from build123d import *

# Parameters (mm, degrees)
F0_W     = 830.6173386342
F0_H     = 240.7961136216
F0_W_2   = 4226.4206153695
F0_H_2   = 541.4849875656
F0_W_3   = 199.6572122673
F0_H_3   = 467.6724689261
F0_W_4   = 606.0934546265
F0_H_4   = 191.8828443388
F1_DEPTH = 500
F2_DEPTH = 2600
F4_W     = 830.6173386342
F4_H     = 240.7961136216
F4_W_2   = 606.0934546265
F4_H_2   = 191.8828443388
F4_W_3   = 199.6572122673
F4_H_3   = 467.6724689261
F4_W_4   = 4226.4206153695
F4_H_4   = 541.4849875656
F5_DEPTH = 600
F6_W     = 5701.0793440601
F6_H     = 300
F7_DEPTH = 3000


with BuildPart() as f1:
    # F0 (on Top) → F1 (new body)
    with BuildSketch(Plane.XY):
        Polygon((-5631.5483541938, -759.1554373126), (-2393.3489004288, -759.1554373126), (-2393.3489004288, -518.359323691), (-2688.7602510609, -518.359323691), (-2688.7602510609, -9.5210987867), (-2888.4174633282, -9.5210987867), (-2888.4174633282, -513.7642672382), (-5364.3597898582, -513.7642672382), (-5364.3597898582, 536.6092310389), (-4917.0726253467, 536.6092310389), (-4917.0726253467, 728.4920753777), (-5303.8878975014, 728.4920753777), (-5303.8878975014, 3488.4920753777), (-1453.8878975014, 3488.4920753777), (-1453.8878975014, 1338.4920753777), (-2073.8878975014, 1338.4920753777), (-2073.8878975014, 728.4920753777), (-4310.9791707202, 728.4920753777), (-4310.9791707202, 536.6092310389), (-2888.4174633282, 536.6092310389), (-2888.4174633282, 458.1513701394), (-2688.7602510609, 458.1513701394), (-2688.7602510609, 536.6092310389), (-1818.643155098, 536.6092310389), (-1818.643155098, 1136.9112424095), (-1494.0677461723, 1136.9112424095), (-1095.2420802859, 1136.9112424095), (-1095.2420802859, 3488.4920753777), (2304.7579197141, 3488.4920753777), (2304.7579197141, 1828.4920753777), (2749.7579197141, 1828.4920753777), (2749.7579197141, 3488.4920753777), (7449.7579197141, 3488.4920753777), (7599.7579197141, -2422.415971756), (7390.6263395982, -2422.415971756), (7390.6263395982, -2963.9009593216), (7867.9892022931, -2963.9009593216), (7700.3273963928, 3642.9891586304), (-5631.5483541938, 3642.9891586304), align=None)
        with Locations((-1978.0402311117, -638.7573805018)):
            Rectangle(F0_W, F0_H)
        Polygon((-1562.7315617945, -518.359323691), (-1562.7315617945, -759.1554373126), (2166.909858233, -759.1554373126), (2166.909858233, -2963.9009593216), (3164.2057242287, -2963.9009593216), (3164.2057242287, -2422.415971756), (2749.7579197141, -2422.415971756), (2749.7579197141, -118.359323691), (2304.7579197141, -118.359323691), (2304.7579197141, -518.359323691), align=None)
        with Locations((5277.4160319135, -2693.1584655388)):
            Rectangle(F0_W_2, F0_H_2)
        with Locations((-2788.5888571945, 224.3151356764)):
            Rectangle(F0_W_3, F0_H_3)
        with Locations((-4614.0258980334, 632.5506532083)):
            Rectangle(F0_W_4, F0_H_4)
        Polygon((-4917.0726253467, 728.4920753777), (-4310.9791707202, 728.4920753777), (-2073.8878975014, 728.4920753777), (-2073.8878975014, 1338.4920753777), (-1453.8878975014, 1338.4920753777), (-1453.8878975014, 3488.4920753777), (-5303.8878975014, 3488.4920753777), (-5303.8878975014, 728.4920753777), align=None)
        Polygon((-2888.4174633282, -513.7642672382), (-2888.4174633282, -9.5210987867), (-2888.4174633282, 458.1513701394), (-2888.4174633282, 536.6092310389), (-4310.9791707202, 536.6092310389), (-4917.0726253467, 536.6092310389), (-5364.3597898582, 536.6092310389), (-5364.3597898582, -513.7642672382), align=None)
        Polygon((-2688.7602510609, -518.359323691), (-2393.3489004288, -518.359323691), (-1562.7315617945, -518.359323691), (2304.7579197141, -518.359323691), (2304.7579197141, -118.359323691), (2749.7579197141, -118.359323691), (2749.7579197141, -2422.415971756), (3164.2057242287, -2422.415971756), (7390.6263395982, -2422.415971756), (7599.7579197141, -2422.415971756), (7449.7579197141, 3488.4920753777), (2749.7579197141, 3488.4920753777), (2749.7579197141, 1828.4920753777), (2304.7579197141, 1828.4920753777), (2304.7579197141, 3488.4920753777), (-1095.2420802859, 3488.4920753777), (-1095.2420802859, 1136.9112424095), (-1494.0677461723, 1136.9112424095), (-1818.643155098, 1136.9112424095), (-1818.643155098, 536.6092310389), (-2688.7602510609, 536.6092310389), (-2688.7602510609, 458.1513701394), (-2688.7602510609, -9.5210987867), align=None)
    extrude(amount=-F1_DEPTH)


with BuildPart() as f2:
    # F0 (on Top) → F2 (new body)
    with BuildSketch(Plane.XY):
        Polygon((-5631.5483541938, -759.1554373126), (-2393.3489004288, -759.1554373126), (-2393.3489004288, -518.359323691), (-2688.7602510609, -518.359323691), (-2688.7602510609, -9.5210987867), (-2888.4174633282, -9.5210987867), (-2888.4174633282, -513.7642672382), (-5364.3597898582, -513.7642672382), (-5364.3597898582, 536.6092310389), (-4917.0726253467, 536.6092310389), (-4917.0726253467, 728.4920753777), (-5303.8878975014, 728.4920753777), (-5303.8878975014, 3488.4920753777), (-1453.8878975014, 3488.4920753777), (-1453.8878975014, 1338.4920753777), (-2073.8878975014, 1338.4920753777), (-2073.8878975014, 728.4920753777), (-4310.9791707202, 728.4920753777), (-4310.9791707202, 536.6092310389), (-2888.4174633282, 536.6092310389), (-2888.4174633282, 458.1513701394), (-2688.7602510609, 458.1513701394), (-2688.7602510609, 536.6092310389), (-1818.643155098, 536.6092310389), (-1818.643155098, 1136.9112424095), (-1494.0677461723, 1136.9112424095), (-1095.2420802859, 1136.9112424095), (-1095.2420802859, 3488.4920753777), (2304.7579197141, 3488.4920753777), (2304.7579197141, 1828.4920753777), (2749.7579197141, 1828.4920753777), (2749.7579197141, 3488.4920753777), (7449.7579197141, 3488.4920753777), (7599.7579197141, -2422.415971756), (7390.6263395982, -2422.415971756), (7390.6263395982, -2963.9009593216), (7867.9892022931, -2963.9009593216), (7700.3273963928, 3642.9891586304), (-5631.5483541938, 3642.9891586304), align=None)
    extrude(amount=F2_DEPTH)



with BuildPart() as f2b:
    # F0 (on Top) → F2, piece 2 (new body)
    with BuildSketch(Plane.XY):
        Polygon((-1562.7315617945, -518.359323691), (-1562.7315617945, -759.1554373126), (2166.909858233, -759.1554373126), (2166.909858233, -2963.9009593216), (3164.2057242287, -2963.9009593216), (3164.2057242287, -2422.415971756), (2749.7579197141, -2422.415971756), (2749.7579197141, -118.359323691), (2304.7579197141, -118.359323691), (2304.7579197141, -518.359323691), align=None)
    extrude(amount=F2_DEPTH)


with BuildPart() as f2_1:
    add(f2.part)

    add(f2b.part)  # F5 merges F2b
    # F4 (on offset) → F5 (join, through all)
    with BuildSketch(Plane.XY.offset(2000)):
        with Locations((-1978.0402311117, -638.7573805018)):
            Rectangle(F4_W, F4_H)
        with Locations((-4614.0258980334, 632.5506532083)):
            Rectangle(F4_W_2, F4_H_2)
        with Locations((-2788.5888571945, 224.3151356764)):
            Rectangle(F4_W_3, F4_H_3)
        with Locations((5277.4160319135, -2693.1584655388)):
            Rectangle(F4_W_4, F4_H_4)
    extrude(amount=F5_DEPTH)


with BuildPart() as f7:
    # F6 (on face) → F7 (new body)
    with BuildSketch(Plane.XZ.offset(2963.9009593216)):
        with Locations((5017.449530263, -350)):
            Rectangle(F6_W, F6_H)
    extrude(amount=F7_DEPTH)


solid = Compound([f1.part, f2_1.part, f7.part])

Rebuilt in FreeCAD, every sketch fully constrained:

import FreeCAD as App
import Part
import Sketcher

V = App.Vector

doc = App.newDocument("Part")
body = doc.addObject("PartDesign::Body", "Body")

# Sketch on XY plane
sketch1 = doc.addObject("Sketcher::SketchObject", "Sketch")
body.addObject(sketch1)
sketch1.AttachmentSupport = (doc.XY_Plane, [""])
sketch1.MapMode = "FlatFace"
sketch1.addGeometry([
    Part.LineSegment(V(-5632, -759, 0), V(2167, -759, 0)),  # 0
    Part.LineSegment(V(2167, -759, 0), V(2167, -2964, 0)),  # 1
    Part.LineSegment(V(2167, -2964, 0), V(7868, -2964, 0)),  # 2
    Part.LineSegment(V(7868, -2964, 0), V(7700, 3643, 0)),  # 3
    Part.LineSegment(V(7700, 3643, 0), V(-5632, 3643, 0)),  # 4
    Part.LineSegment(V(-5632, 3643, 0), V(-5632, -759, 0)),  # 5
], False)
sketch1.addConstraint([
    Sketcher.Constraint("Coincident", 0, 2, 1, 1),
    Sketcher.Constraint("Coincident", 1, 2, 2, 1),
    Sketcher.Constraint("Coincident", 2, 2, 3, 1),
    Sketcher.Constraint("Coincident", 3, 2, 4, 1),
    Sketcher.Constraint("Coincident", 4, 2, 5, 1),
    Sketcher.Constraint("Coincident", 5, 2, 0, 1),
    Sketcher.Constraint("Horizontal", 0),
    Sketcher.Constraint("Vertical", 1),
    Sketcher.Constraint("Horizontal", 2),
    Sketcher.Constraint("Horizontal", 4),
    Sketcher.Constraint("Vertical", 5),
    Sketcher.Constraint("DistanceX", 4, 2, 4, 1, 13331.875751),
    Sketcher.Constraint("DistanceX", 0, 1, 0, 2, 7798.458212),
    Sketcher.Constraint("DistanceX", 2, 1, 2, 2, 5701.079344),
    Sketcher.Constraint("DistanceY", 1, 2, 1, 1, 2204.745522),
    Sketcher.Constraint("DistanceY", 5, 2, 5, 1, 4402.144596),
    Sketcher.Constraint("DistanceX", -1, 1, 0, 2, 2166.909858),
    Sketcher.Constraint("DistanceY", 1, 2, -1, 1, 2963.900959),
])
pad1 = doc.addObject("PartDesign::Pad", "Pad")
body.addObject(pad1)
pad1.Profile = sketch1
pad1.Length = 500
pad1.Reversed = True
body2 = doc.addObject("PartDesign::Body", "Body001")

# Sketch on XY plane
sketch2 = doc.addObject("Sketcher::SketchObject", "Sketch001")
body2.addObject(sketch2)
sketch2.AttachmentSupport = (doc.getObject("XY_Plane001"), [""])
sketch2.MapMode = "FlatFace"
sketch2.addGeometry([
    Part.LineSegment(V(-5632, -759, 0), V(-2393, -759, 0)),  # 0
    Part.LineSegment(V(-2393, -759, 0), V(-2393, -518, 0)),  # 1
    Part.LineSegment(V(-2393, -518, 0), V(-2689, -518, 0)),  # 2
    Part.LineSegment(V(-2689, -518, 0), V(-2689, -10, 0)),  # 3
    Part.LineSegment(V(-2689, -10, 0), V(-2888, -10, 0)),  # 4
    Part.LineSegment(V(-2888, -10, 0), V(-2888, -514, 0)),  # 5
    Part.LineSegment(V(-2888, -514, 0), V(-5364, -514, 0)),  # 6
    Part.LineSegment(V(-5364, -514, 0), V(-5364, 537, 0)),  # 7
    Part.LineSegment(V(-5364, 537, 0), V(-4917, 537, 0)),  # 8
    Part.LineSegment(V(-4917, 537, 0), V(-4917, 728, 0)),  # 9
    Part.LineSegment(V(-4917, 728, 0), V(-5304, 728, 0)),  # 10
    Part.LineSegment(V(-5304, 728, 0), V(-5304, 3488, 0)),  # 11
    Part.LineSegment(V(-5304, 3488, 0), V(-1454, 3488, 0)),  # 12
    Part.LineSegment(V(-1454, 3488, 0), V(-1454, 1338, 0)),  # 13
    Part.LineSegment(V(-1454, 1338, 0), V(-2074, 1338, 0)),  # 14
    Part.LineSegment(V(-2074, 1338, 0), V(-2074, 728, 0)),  # 15
    Part.LineSegment(V(-2074, 728, 0), V(-4311, 728, 0)),  # 16
    Part.LineSegment(V(-4311, 728, 0), V(-4311, 537, 0)),  # 17
    Part.LineSegment(V(-4311, 537, 0), V(-2888, 537, 0)),  # 18
    Part.LineSegment(V(-2888, 537, 0), V(-2888, 458, 0)),  # 19
    Part.LineSegment(V(-2888, 458, 0), V(-2689, 458, 0)),  # 20
    Part.LineSegment(V(-2689, 458, 0), V(-2689, 537, 0)),  # 21
    Part.LineSegment(V(-2689, 537, 0), V(-1819, 537, 0)),  # 22
    Part.LineSegment(V(-1819, 537, 0), V(-1819, 1137, 0)),  # 23
    Part.LineSegment(V(-1819, 1137, 0), V(-1095, 1137, 0)),  # 24
    Part.LineSegment(V(-1095, 1137, 0), V(-1095, 3488, 0)),  # 25
    Part.LineSegment(V(-1095, 3488, 0), V(2305, 3488, 0)),  # 26
    Part.LineSegment(V(2305, 3488, 0), V(2305, 1828, 0)),  # 27
    Part.LineSegment(V(2305, 1828, 0), V(2750, 1828, 0)),  # 28
    Part.LineSegment(V(2750, 1828, 0), V(2750, 3488, 0)),  # 29
    Part.LineSegment(V(2750, 3488, 0), V(7450, 3488, 0)),  # 30
    Part.LineSegment(V(7450, 3488, 0), V(7600, -2422, 0)),  # 31
    Part.LineSegment(V(7600, -2422, 0), V(7391, -2422, 0)),  # 32
    Part.LineSegment(V(7391, -2422, 0), V(7391, -2964, 0)),  # 33
    Part.LineSegment(V(7391, -2964, 0), V(7868, -2964, 0)),  # 34
    Part.LineSegment(V(7868, -2964, 0), V(7700, 3643, 0)),  # 35
    Part.LineSegment(V(7700, 3643, 0), V(-5632, 3643, 0)),  # 36
    Part.LineSegment(V(-5632, 3643, 0), V(-5632, -759, 0)),  # 37
], False)
sketch2.addConstraint([
    Sketcher.Constraint("Coincident", 0, 2, 1, 1),
    Sketcher.Constraint("Coincident", 1, 2, 2, 1),
    Sketcher.Constraint("Coincident", 2, 2, 3, 1),
    Sketcher.Constraint("Coincident", 3, 2, 4, 1),
    Sketcher.Constraint("Coincident", 4, 2, 5, 1),
    Sketcher.Constraint("Coincident", 5, 2, 6, 1),
    Sketcher.Constraint("Coincident", 6, 2, 7, 1),
    Sketcher.Constraint("Coincident", 7, 2, 8, 1),
    Sketcher.Constraint("Coincident", 8, 2, 9, 1),
    Sketcher.Constraint("Coincident", 9, 2, 10, 1),
    Sketcher.Constraint("Coincident", 10, 2, 11, 1),
    Sketcher.Constraint("Coincident", 11, 2, 12, 1),
    Sketcher.Constraint("Coincident", 12, 2, 13, 1),
    Sketcher.Constraint("Coincident", 13, 2, 14, 1),
    Sketcher.Constraint("Coincident", 14, 2, 15, 1),
    Sketcher.Constraint("Coincident", 15, 2, 16, 1),
    Sketcher.Constraint("Coincident", 16, 2, 17, 1),
    Sketcher.Constraint("Coincident", 17, 2, 18, 1),
    Sketcher.Constraint("Coincident", 18, 2, 19, 1),
    Sketcher.Constraint("Coincident", 19, 2, 20, 1),
    Sketcher.Constraint("Coincident", 20, 2, 21, 1),
    Sketcher.Constraint("Coincident", 21, 2, 22, 1),
    Sketcher.Constraint("Coincident", 22, 2, 23, 1),
    Sketcher.Constraint("Coincident", 23, 2, 24, 1),
    Sketcher.Constraint("Coincident", 24, 2, 25, 1),
    Sketcher.Constraint("Coincident", 25, 2, 26, 1),
    Sketcher.Constraint("Coincident", 26, 2, 27, 1),
    Sketcher.Constraint("Coincident", 27, 2, 28, 1),
    Sketcher.Constraint("Coincident", 28, 2, 29, 1),
    Sketcher.Constraint("Coincident", 29, 2, 30, 1),
    Sketcher.Constraint("Coincident", 30, 2, 31, 1),
    Sketcher.Constraint("Coincident", 31, 2, 32, 1),
    Sketcher.Constraint("Coincident", 32, 2, 33, 1),
    Sketcher.Constraint("Coincident", 33, 2, 34, 1),
    Sketcher.Constraint("Coincident", 34, 2, 35, 1),
    Sketcher.Constraint("Coincident", 35, 2, 36, 1),
    Sketcher.Constraint("Coincident", 36, 2, 37, 1),
    Sketcher.Constraint("Coincident", 37, 2, 0, 1),
    Sketcher.Constraint("Horizontal", 0),
    Sketcher.Constraint("Vertical", 1),
    Sketcher.Constraint("Horizontal", 2),
    Sketcher.Constraint("Vertical", 3),
    Sketcher.Constraint("Horizontal", 4),
    Sketcher.Constraint("Vertical", 5),
    Sketcher.Constraint("Horizontal", 6),
    Sketcher.Constraint("Vertical", 7),
    Sketcher.Constraint("Horizontal", 8),
    Sketcher.Constraint("Vertical", 9),
    Sketcher.Constraint("Horizontal", 10),
    Sketcher.Constraint("Vertical", 11),
    Sketcher.Constraint("Horizontal", 12),
    Sketcher.Constraint("Vertical", 13),
    Sketcher.Constraint("Horizontal", 14),
    Sketcher.Constraint("Vertical", 15),
    Sketcher.Constraint("Horizontal", 16),
    Sketcher.Constraint("Vertical", 17),
    Sketcher.Constraint("Horizontal", 18),
    Sketcher.Constraint("Vertical", 19),
    Sketcher.Constraint("Horizontal", 20),
    Sketcher.Constraint("Vertical", 21),
    Sketcher.Constraint("Horizontal", 22),
    Sketcher.Constraint("Vertical", 23),
    Sketcher.Constraint("Horizontal", 24),
    Sketcher.Constraint("Vertical", 25),
    Sketcher.Constraint("Horizontal", 26),
    Sketcher.Constraint("Vertical", 27),
    Sketcher.Constraint("Horizontal", 28),
    Sketcher.Constraint("Vertical", 29),
    Sketcher.Constraint("Horizontal", 30),
    Sketcher.Constraint("Horizontal", 32),
    Sketcher.Constraint("Vertical", 33),
    Sketcher.Constraint("Horizontal", 34),
    Sketcher.Constraint("Horizontal", 36),
    Sketcher.Constraint("Vertical", 37),
    Sketcher.Constraint("Parallel", 31, 35),
    Sketcher.Constraint("Horizontal", 10, 2, 15, 2),
    Sketcher.Constraint("Horizontal", 8, 2, 17, 2),
    Sketcher.Constraint("Horizontal", 18, 2, 21, 2),
    Sketcher.Constraint("Horizontal", 12, 2, 25, 2),
    Sketcher.Constraint("Horizontal", 26, 2, 29, 2),
    Sketcher.Constraint("Vertical", 5, 2, 18, 2),
    Sketcher.Constraint("Vertical", 3, 2, 20, 2),
    Sketcher.Constraint("DistanceX", 12, 1, 12, 2, 3850.0),
    Sketcher.Constraint("DistanceX", 14, 2, 14, 1, 620.0),
    Sketcher.Constraint("DistanceX", 26, 1, 26, 2, 3400.0),
    Sketcher.Constraint("DistanceX", 28, 1, 28, 2, 445.0),
    Sketcher.Constraint("DistanceX", 30, 1, 30, 2, 4700.0),
    Sketcher.Constraint("DistanceY", 11, 1, 11, 2, 2760.0),
    Sketcher.Constraint("DistanceY", 13, 2, 13, 1, 2150.0),
    Sketcher.Constraint("DistanceY", 27, 2, 27, 1, 1660.0),
    Sketcher.Constraint("DistanceX", 30, 2, 31, 2, 150.0),
    Sketcher.Constraint("Distance", 31, 5912.811002),
    Sketcher.Constraint("DistanceY", 7, 1, 7, 2, 1050.373498),
    Sketcher.Constraint("DistanceX", 2, 2, 2, 1, 295.411351),
    Sketcher.Constraint("DistanceX", 32, 2, 32, 1, 209.13158),
    Sketcher.Constraint("DistanceX", 36, 2, 36, 1, 13331.875751),
    Sketcher.Constraint("DistanceY", 5, 2, 5, 1, 504.243168),
    Sketcher.Constraint("DistanceY", 19, 2, 19, 1, 78.457861),
    Sketcher.Constraint("DistanceY", 23, 1, 23, 2, 600.302011),
    Sketcher.Constraint("DistanceX", 0, 2, -1, 1, 2393.3489),
    Sketcher.Constraint("DistanceY", 3, 2, -1, 1, 9.521099),
    Sketcher.Constraint("DistanceY", 1, 2, 12, 2, 4006.851399),
    Sketcher.Constraint("DistanceX", 0, 1, 0, 2, 3238.199454),
    Sketcher.Constraint("DistanceX", 4, 2, 4, 1, 199.657212),
    Sketcher.Constraint("DistanceX", 6, 2, 6, 1, 2475.942327),
    Sketcher.Constraint("DistanceX", 8, 1, 8, 2, 447.287165),
    Sketcher.Constraint("DistanceX", 10, 2, 10, 1, 386.815272),
    Sketcher.Constraint("DistanceX", 16, 2, 16, 1, 2237.091273),
    Sketcher.Constraint("DistanceX", 22, 1, 22, 2, 870.117096),
    Sketcher.Constraint("DistanceX", 24, 1, 24, 2, 723.401075),
    Sketcher.Constraint("DistanceX", 34, 1, 34, 2, 477.362863),
    Sketcher.Constraint("DistanceY", 1, 1, 1, 2, 240.796114),
    Sketcher.Constraint("DistanceY", 3, 1, 3, 2, 508.838225),
    Sketcher.Constraint("DistanceY", 33, 2, 33, 1, 541.484988),
])
pad2 = doc.addObject("PartDesign::Pad", "Pad001")
body2.addObject(pad2)
pad2.Profile = sketch2
pad2.Length = 2600
body3 = doc.addObject("PartDesign::Body", "Body002")

# Sketch on XY plane
sketch3 = doc.addObject("Sketcher::SketchObject", "Sketch002")
body3.addObject(sketch3)
sketch3.AttachmentSupport = (doc.getObject("XY_Plane002"), [""])
sketch3.MapMode = "FlatFace"
sketch3.addGeometry([
    Part.LineSegment(V(-1563, -518, 0), V(-1563, -759, 0)),  # 0
    Part.LineSegment(V(-1563, -759, 0), V(2167, -759, 0)),  # 1
    Part.LineSegment(V(2167, -759, 0), V(2167, -2964, 0)),  # 2
    Part.LineSegment(V(2167, -2964, 0), V(3164, -2964, 0)),  # 3
    Part.LineSegment(V(3164, -2964, 0), V(3164, -2422, 0)),  # 4
    Part.LineSegment(V(3164, -2422, 0), V(2750, -2422, 0)),  # 5
    Part.LineSegment(V(2750, -2422, 0), V(2750, -118, 0)),  # 6
    Part.LineSegment(V(2750, -118, 0), V(2305, -118, 0)),  # 7
    Part.LineSegment(V(2305, -118, 0), V(2305, -518, 0)),  # 8
    Part.LineSegment(V(2305, -518, 0), V(-1563, -518, 0)),  # 9
], False)
sketch3.addConstraint([
    Sketcher.Constraint("Coincident", 0, 2, 1, 1),
    Sketcher.Constraint("Coincident", 1, 2, 2, 1),
    Sketcher.Constraint("Coincident", 2, 2, 3, 1),
    Sketcher.Constraint("Coincident", 3, 2, 4, 1),
    Sketcher.Constraint("Coincident", 4, 2, 5, 1),
    Sketcher.Constraint("Coincident", 5, 2, 6, 1),
    Sketcher.Constraint("Coincident", 6, 2, 7, 1),
    Sketcher.Constraint("Coincident", 7, 2, 8, 1),
    Sketcher.Constraint("Coincident", 8, 2, 9, 1),
    Sketcher.Constraint("Coincident", 9, 2, 0, 1),
    Sketcher.Constraint("Vertical", 0),
    Sketcher.Constraint("Horizontal", 1),
    Sketcher.Constraint("Vertical", 2),
    Sketcher.Constraint("Horizontal", 3),
    Sketcher.Constraint("Vertical", 4),
    Sketcher.Constraint("Horizontal", 5),
    Sketcher.Constraint("Vertical", 6),
    Sketcher.Constraint("Horizontal", 7),
    Sketcher.Constraint("Vertical", 8),
    Sketcher.Constraint("Horizontal", 9),
    Sketcher.Constraint("DistanceX", 7, 2, 7, 1, 445.0),
    Sketcher.Constraint("DistanceY", 8, 2, 8, 1, 400.0),
    Sketcher.Constraint("DistanceX", 1, 1, 1, 2, 3729.64142),
    Sketcher.Constraint("DistanceX", 9, 2, 9, 1, 3867.489482),
    Sketcher.Constraint("DistanceY", 6, 1, 6, 2, 2304.056648),
    Sketcher.Constraint("DistanceX", 3, 1, 3, 2, 997.295866),
    Sketcher.Constraint("DistanceY", 0, 2, 0, 1, 240.796114),
    Sketcher.Constraint("DistanceY", 2, 2, 2, 1, 2204.745522),
    Sketcher.Constraint("DistanceX", 0, 2, -1, 1, 1562.731562),
    Sketcher.Constraint("DistanceY", 2, 2, -1, 1, 2963.900959),
])
pad3 = doc.addObject("PartDesign::Pad", "Pad002")
body3.addObject(pad3)
pad3.Profile = sketch3
pad3.Length = 2600
body2.AllowCompound = True
doc.recompute()

boolean = doc.addObject("PartDesign::Boolean", "Boolean")
body2.addObject(boolean)
boolean.Type = "Fuse"
boolean.addObjects([body3])

# Sketch on XY plane
sketch4 = doc.addObject("Sketcher::SketchObject", "Sketch003")
body2.addObject(sketch4)
sketch4.AttachmentSupport = (doc.getObject("XY_Plane001"), [""])
sketch4.MapMode = "FlatFace"
sketch4.AttachmentOffset = App.Placement(V(0, 0, 2000), App.Rotation())
sketch4.addGeometry([
    Part.LineSegment(V(-2393, -518, 0), V(-2393, -759, 0)),  # 0
    Part.LineSegment(V(-2393, -759, 0), V(-1563, -759, 0)),  # 1
    Part.LineSegment(V(-1563, -759, 0), V(-1563, -518, 0)),  # 2
    Part.LineSegment(V(-1563, -518, 0), V(-2393, -518, 0)),  # 3
    Part.LineSegment(V(-4917, 728, 0), V(-4917, 537, 0)),  # 4
    Part.LineSegment(V(-4917, 537, 0), V(-4311, 537, 0)),  # 5
    Part.LineSegment(V(-4311, 537, 0), V(-4311, 728, 0)),  # 6
    Part.LineSegment(V(-4311, 728, 0), V(-4917, 728, 0)),  # 7
    Part.LineSegment(V(-2888, 458, 0), V(-2888, -10, 0)),  # 8
    Part.LineSegment(V(-2888, -10, 0), V(-2689, -10, 0)),  # 9
    Part.LineSegment(V(-2689, -10, 0), V(-2689, 458, 0)),  # 10
    Part.LineSegment(V(-2689, 458, 0), V(-2888, 458, 0)),  # 11
    Part.LineSegment(V(3164, -2422, 0), V(3164, -2964, 0)),  # 12
    Part.LineSegment(V(3164, -2964, 0), V(7391, -2964, 0)),  # 13
    Part.LineSegment(V(7391, -2964, 0), V(7391, -2422, 0)),  # 14
    Part.LineSegment(V(7391, -2422, 0), V(3164, -2422, 0)),  # 15
], False)
sketch4.addConstraint([
    Sketcher.Constraint("Coincident", 0, 2, 1, 1),
    Sketcher.Constraint("Coincident", 1, 2, 2, 1),
    Sketcher.Constraint("Coincident", 2, 2, 3, 1),
    Sketcher.Constraint("Coincident", 3, 2, 0, 1),
    Sketcher.Constraint("Coincident", 4, 2, 5, 1),
    Sketcher.Constraint("Coincident", 5, 2, 6, 1),
    Sketcher.Constraint("Coincident", 6, 2, 7, 1),
    Sketcher.Constraint("Coincident", 7, 2, 4, 1),
    Sketcher.Constraint("Coincident", 8, 2, 9, 1),
    Sketcher.Constraint("Coincident", 9, 2, 10, 1),
    Sketcher.Constraint("Coincident", 10, 2, 11, 1),
    Sketcher.Constraint("Coincident", 11, 2, 8, 1),
    Sketcher.Constraint("Coincident", 12, 2, 13, 1),
    Sketcher.Constraint("Coincident", 13, 2, 14, 1),
    Sketcher.Constraint("Coincident", 14, 2, 15, 1),
    Sketcher.Constraint("Coincident", 15, 2, 12, 1),
    Sketcher.Constraint("Vertical", 0),
    Sketcher.Constraint("Horizontal", 1),
    Sketcher.Constraint("Vertical", 2),
    Sketcher.Constraint("Horizontal", 3),
    Sketcher.Constraint("Vertical", 4),
    Sketcher.Constraint("Horizontal", 5),
    Sketcher.Constraint("Vertical", 6),
    Sketcher.Constraint("Horizontal", 7),
    Sketcher.Constraint("Vertical", 8),
    Sketcher.Constraint("Horizontal", 9),
    Sketcher.Constraint("Vertical", 10),
    Sketcher.Constraint("Horizontal", 11),
    Sketcher.Constraint("Vertical", 12),
    Sketcher.Constraint("Horizontal", 13),
    Sketcher.Constraint("Vertical", 14),
    Sketcher.Constraint("Horizontal", 15),
    Sketcher.Constraint("DistanceX", 1, 1, 1, 2, 830.617339),
    Sketcher.Constraint("DistanceY", 8, 2, 8, 1, 467.672469),
    Sketcher.Constraint("DistanceX", 0, 2, -1, 1, 2393.3489),
    Sketcher.Constraint("DistanceY", 8, 2, -1, 1, 9.521099),
    Sketcher.Constraint("DistanceY", 3, 2, 6, 2, 1246.851399),
    Sketcher.Constraint("DistanceX", 8, 2, 2, 2, 1325.685902),
    Sketcher.Constraint("DistanceX", 1, 2, 13, 2, 8953.357901),
    Sketcher.Constraint("DistanceX", 5, 1, 5, 2, 606.093455),
    Sketcher.Constraint("DistanceX", 9, 1, 9, 2, 199.657212),
    Sketcher.Constraint("DistanceX", 13, 1, 13, 2, 4226.420615),
    Sketcher.Constraint("DistanceY", 0, 2, 0, 1, 240.796114),
    Sketcher.Constraint("DistanceY", 4, 2, 4, 1, 191.882844),
    Sketcher.Constraint("DistanceY", 12, 2, 12, 1, 541.484988),
    Sketcher.Constraint("DistanceY", -1, 1, 4, 2, 536.609231),
    Sketcher.Constraint("DistanceX", 5, 2, -1, 1, 4310.979171),
    Sketcher.Constraint("DistanceY", 12, 2, -1, 1, 2963.900959),
])
pad4 = doc.addObject("PartDesign::Pad", "Pad003")
body2.addObject(pad4)
pad4.Profile = sketch4
pad4.Length = 600
body4 = doc.addObject("PartDesign::Body", "Body003")

# Sketch on XZ plane
sketch5 = doc.addObject("Sketcher::SketchObject", "Sketch004")
body4.addObject(sketch5)
sketch5.AttachmentSupport = (doc.getObject("XZ_Plane003"), [""])
sketch5.MapMode = "FlatFace"
sketch5.AttachmentOffset = App.Placement(V(0, 0, 2963.900959), App.Rotation())
sketch5.addGeometry([
    Part.LineSegment(V(2167, -200, 0), V(2167, -500, 0)),
    Part.LineSegment(V(2167, -500, 0), V(7868, -500, 0)),
    Part.LineSegment(V(7868, -500, 0), V(7868, -200, 0)),
    Part.LineSegment(V(7868, -200, 0), V(2167, -200, 0)),
], False)
sketch5.addConstraint([
    Sketcher.Constraint("Coincident", 0, 2, 1, 1),
    Sketcher.Constraint("Coincident", 1, 2, 2, 1),
    Sketcher.Constraint("Coincident", 2, 2, 3, 1),
    Sketcher.Constraint("Coincident", 3, 2, 0, 1),
    Sketcher.Constraint("Vertical", 0),
    Sketcher.Constraint("Horizontal", 1),
    Sketcher.Constraint("Vertical", 2),
    Sketcher.Constraint("Horizontal", 3),
    Sketcher.Constraint("DistanceY", 0, 2, 0, 1, 300.0),
    Sketcher.Constraint("DistanceY", 0, 2, -1, 1, 500.0),
    Sketcher.Constraint("DistanceX", 1, 1, 1, 2, 5701.079344),
    Sketcher.Constraint("DistanceX", -1, 1, 0, 2, 2166.909858),
])
pad5 = doc.addObject("PartDesign::Pad", "Pad004")
body4.addObject(pad5)
pad5.Profile = sketch5
pad5.Length = 3000

doc.recompute()
